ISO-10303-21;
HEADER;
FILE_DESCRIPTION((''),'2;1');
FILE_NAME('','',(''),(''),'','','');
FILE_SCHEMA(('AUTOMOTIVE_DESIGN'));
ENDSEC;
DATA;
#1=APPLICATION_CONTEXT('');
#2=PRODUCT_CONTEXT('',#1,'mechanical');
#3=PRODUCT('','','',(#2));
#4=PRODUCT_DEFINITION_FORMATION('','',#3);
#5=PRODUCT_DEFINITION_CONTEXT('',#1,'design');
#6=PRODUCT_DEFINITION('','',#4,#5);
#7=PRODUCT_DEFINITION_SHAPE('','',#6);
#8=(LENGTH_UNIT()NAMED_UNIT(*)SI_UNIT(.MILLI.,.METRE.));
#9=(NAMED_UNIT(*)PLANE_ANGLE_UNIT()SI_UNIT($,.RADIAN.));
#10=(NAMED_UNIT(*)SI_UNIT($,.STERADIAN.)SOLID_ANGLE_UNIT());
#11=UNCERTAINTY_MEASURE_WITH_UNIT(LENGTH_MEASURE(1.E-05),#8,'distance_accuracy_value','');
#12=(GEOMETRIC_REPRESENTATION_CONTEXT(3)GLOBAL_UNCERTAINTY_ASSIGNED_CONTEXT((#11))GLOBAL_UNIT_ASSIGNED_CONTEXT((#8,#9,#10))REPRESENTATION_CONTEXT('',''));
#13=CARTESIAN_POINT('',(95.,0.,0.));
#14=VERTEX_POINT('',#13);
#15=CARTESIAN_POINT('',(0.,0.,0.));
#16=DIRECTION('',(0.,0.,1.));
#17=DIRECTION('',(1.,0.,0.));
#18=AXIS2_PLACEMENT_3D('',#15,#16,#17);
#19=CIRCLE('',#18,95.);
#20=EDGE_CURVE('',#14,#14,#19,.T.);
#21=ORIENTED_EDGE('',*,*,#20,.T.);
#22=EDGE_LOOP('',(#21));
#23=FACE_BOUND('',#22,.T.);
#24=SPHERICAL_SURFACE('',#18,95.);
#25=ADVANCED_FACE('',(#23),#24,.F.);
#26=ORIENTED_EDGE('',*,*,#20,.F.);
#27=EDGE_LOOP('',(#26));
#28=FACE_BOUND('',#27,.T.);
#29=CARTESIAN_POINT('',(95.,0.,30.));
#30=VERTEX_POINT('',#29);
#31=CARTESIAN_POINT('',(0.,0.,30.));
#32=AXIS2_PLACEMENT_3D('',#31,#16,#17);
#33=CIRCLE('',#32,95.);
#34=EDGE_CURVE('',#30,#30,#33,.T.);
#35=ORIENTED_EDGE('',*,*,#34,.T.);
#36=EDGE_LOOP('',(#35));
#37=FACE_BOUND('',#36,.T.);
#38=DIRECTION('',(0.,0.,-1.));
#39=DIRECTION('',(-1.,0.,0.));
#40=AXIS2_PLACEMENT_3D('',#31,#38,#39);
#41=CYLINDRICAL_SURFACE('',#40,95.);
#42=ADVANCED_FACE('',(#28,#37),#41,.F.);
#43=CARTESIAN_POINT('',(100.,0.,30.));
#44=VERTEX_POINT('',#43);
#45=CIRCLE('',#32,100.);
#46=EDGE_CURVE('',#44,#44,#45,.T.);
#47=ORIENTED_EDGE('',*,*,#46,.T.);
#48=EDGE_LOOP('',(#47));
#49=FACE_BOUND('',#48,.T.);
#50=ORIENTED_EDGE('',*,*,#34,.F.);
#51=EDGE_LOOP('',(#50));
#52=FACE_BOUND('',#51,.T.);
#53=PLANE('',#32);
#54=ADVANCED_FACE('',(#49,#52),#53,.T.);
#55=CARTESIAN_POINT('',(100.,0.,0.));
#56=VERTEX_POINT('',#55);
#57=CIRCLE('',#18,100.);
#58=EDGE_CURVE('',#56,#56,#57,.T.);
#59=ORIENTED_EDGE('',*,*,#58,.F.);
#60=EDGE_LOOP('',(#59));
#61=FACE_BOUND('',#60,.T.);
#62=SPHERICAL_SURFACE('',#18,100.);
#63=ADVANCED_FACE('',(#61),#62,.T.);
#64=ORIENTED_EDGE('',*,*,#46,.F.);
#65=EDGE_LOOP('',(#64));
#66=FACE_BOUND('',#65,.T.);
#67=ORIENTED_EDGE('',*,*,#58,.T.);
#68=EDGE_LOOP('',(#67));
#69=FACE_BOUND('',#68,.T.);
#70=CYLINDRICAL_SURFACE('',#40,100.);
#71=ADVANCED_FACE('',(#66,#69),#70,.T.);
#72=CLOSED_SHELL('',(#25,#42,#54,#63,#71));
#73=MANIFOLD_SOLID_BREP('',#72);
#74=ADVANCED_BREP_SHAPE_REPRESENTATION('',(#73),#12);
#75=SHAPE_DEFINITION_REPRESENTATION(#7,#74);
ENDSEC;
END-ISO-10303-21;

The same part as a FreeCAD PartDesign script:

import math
import FreeCAD as App
import Part
import Sketcher

V = App.Vector

doc = App.newDocument("Part")
params = doc.addObject("Spreadsheet::Sheet", "Params")
for row, (alias, value) in enumerate([
    ("sketch1_radius", "100 mm"),
    ("sketch1_radius2", "95 mm"),
    ("revolution_angle", "360 deg"),
    ("sketch2_diameter", "200 mm"),
    ("sketch2_diameter2", "190 mm"),
    ("pad1_length", "30 mm"),
], start=1):
    params.set(f"A{row}", alias)
    params.set(f"B{row}", "=" + value)
    params.setAlias(f"B{row}", alias)

body = doc.addObject("PartDesign::Body", "Body")

# Sketch on XZ plane
sketch1 = body.newObject("Sketcher::SketchObject", "Sketch")
sketch1.AttachmentSupport = (doc.getObject("XZ_Plane"), [""])
sketch1.MapMode = "FlatFace"
sketch1.addGeometry([
    Part.LineSegment(V(95, 0, 0), V(100, 0, 0)),
    Part.ArcOfCircle(Part.Circle(V(0, 0, 0), V(0, 0, 1), 100), math.radians(-90), math.radians(0)),
    Part.LineSegment(V(0, -100, 0), V(0, -95, 0)),
    Part.ArcOfCircle(Part.Circle(V(0, 0, 0), V(0, 0, 1), 95), math.radians(-90), math.radians(0)),
], False)
sketch1.addConstraint([
    Sketcher.Constraint("Coincident", 0, 2, 1, 2),
    Sketcher.Constraint("Coincident", 1, 1, 2, 1),
    Sketcher.Constraint("Coincident", 2, 2, 3, 1),
    Sketcher.Constraint("Coincident", 3, 2, 0, 1),
    Sketcher.Constraint("Horizontal", 0),
    Sketcher.Constraint("Vertical", 2),
    Sketcher.Constraint("Coincident", 1, 3, -1, 1),
    Sketcher.Constraint("Coincident", 3, 3, -1, 1),
    Sketcher.Constraint("PointOnObject", 0, 2, -1),
    Sketcher.Constraint("PointOnObject", 1, 1, -2),
    Sketcher.Constraint("Radius", 1, 100.0),
    Sketcher.Constraint("Radius", 3, 95.0),
])
sketch1.setExpression("Constraints[10]", "Params.sketch1_radius")
sketch1.setExpression("Constraints[11]", "Params.sketch1_radius2")
revolution = body.newObject("PartDesign::Revolution", "Revolution")
revolution.Profile = sketch1
revolution.ReferenceAxis = (sketch1, ["V_Axis"])
revolution.setExpression("Angle", "Params.revolution_angle")

# Sketch on XY plane
sketch2 = body.newObject("Sketcher::SketchObject", "Sketch001")
sketch2.AttachmentSupport = (doc.getObject("XY_Plane"), [""])
sketch2.MapMode = "FlatFace"
sketch2.addGeometry([
    Part.Circle(V(0, 0, 0), V(0, 0, 1), 100),
    Part.Circle(V(0, 0, 0), V(0, 0, 1), 95),
], False)
sketch2.addConstraint([
    Sketcher.Constraint("Coincident", 0, 3, -1, 1),
    Sketcher.Constraint("Coincident", 1, 3, -1, 1),
    Sketcher.Constraint("Diameter", 0, 200.0),
    Sketcher.Constraint("Diameter", 1, 190.0),
])
sketch2.setExpression("Constraints[2]", "Params.sketch2_diameter")
sketch2.setExpression("Constraints[3]", "Params.sketch2_diameter2")
pad1 = body.newObject("PartDesign::Pad", "Pad")
pad1.Profile = sketch2
pad1.setExpression("Length", "Params.pad1_length")

doc.recompute()
